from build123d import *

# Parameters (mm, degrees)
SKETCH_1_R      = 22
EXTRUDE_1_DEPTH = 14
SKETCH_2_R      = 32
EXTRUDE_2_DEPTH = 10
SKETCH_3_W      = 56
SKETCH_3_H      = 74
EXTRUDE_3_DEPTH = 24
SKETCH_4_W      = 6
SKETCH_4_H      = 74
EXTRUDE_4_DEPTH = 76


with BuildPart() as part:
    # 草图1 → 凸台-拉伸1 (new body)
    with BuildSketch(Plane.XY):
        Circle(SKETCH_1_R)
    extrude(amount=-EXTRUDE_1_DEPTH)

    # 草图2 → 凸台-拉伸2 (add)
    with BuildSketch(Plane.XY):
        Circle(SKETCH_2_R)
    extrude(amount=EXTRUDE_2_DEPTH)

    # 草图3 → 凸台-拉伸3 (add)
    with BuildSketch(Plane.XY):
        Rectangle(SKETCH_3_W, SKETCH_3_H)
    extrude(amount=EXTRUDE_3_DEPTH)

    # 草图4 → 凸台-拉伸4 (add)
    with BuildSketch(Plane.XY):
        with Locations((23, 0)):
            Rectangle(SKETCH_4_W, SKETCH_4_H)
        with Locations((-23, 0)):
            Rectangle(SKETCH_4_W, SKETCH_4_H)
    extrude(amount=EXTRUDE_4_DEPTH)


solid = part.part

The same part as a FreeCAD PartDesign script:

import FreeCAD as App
import Part
import Sketcher
Q = App.Units.Quantity

doc = App.newDocument("Part")
body = doc.addObject("PartDesign::Body", "Body")

# Sketch on XY plane
sketch1 = body.newObject("Sketcher::SketchObject", "Sketch")
sketch1.AttachmentSupport = (doc.getObject("XY_Plane"), [""])
sketch1.MapMode = "FlatFace"
sketch1.addGeometry(Part.Circle(App.Vector(0, 0, 0), App.Vector(0, 0, 1), 22), False)
sketch1.addConstraint(Sketcher.Constraint("Coincident", 0, 3, -1, 1))
sketch1.addConstraint(Sketcher.Constraint("Diameter", 0, Q("44 mm")))
pad1 = body.newObject("PartDesign::Pad", "Pad")
pad1.Profile = sketch1
pad1.Length = 14
pad1.Reversed = True

# Sketch on XY plane
sketch2 = body.newObject("Sketcher::SketchObject", "Sketch001")
sketch2.AttachmentSupport = (doc.getObject("XY_Plane"), [""])
sketch2.MapMode = "FlatFace"
sketch2.addGeometry(Part.Circle(App.Vector(0, 0, 0), App.Vector(0, 0, 1), 32), False)
sketch2.addConstraint(Sketcher.Constraint("Coincident", 0, 3, -1, 1))
sketch2.addConstraint(Sketcher.Constraint("Diameter", 0, Q("64 mm")))
pad2 = body.newObject("PartDesign::Pad", "Pad001")
pad2.Profile = sketch2
pad2.Length = 10

# Sketch on XY plane
sketch3 = body.newObject("Sketcher::SketchObject", "Sketch002")
sketch3.AttachmentSupport = (doc.getObject("XY_Plane"), [""])
sketch3.MapMode = "FlatFace"
sketch3.addGeometry(Part.LineSegment(App.Vector(-28, 37, 0), App.Vector(-28, -37, 0)), False)
sketch3.addGeometry(Part.LineSegment(App.Vector(-28, -37, 0), App.Vector(28, -37, 0)), False)
sketch3.addGeometry(Part.LineSegment(App.Vector(28, -37, 0), App.Vector(28, 37, 0)), False)
sketch3.addGeometry(Part.LineSegment(App.Vector(28, 37, 0), App.Vector(-28, 37, 0)), False)
sketch3.addConstraint(Sketcher.Constraint("Coincident", 0, 2, 1, 1))
sketch3.addConstraint(Sketcher.Constraint("Coincident", 1, 2, 2, 1))
sketch3.addConstraint(Sketcher.Constraint("Coincident", 2, 2, 3, 1))
sketch3.addConstraint(Sketcher.Constraint("Coincident", 3, 2, 0, 1))
sketch3.addConstraint(Sketcher.Constraint("Vertical", 0))
sketch3.addConstraint(Sketcher.Constraint("Horizontal", 1))
sketch3.addConstraint(Sketcher.Constraint("Vertical", 2))
sketch3.addConstraint(Sketcher.Constraint("Horizontal", 3))
sketch3.addConstraint(Sketcher.Constraint("Symmetric", 0, 2, 2, 2, -1, 1))
sketch3.addConstraint(Sketcher.Constraint("DistanceX", 1, 1, 1, 2, Q("56 mm")))
sketch3.addConstraint(Sketcher.Constraint("DistanceY", 0, 2, 0, 1, Q("74 mm")))
pad3 = body.newObject("PartDesign::Pad", "Pad002")
pad3.Profile = sketch3
pad3.Length = 24

# Sketch on XY plane
sketch4 = body.newObject("Sketcher::SketchObject", "Sketch003")
sketch4.AttachmentSupport = (doc.getObject("XY_Plane"), [""])
sketch4.MapMode = "FlatFace"
sketch4.addGeometry(Part.LineSegment(App.Vector(20, 37, 0), App.Vector(20, -37, 0)), False)
sketch4.addGeometry(Part.LineSegment(App.Vector(20, -37, 0), App.Vector(26, -37, 0)), False)
sketch4.addGeometry(Part.LineSegment(App.Vector(26, -37, 0), App.Vector(26, 37, 0)), False)
sketch4.addGeometry(Part.LineSegment(App.Vector(26, 37, 0), App.Vector(20, 37, 0)), False)
sketch4.addGeometry(Part.LineSegment(App.Vector(-26, 37, 0), App.Vector(-26, -37, 0)), False)
sketch4.addGeometry(Part.LineSegment(App.Vector(-26, -37, 0), App.Vector(-20, -37, 0)), False)
sketch4.addGeometry(Part.LineSegment(App.Vector(-20, -37, 0), App.Vector(-20, 37, 0)), False)
sketch4.addGeometry(Part.LineSegment(App.Vector(-20, 37, 0), App.Vector(-26, 37, 0)), False)
sketch4.addConstraint(Sketcher.Constraint("Coincident", 0, 2, 1, 1))
sketch4.addConstraint(Sketcher.Constraint("Coincident", 1, 2, 2, 1))
sketch4.addConstraint(Sketcher.Constraint("Coincident", 2, 2, 3, 1))
sketch4.addConstraint(Sketcher.Constraint("Coincident", 3, 2, 0, 1))
sketch4.addConstraint(Sketcher.Constraint("Coincident", 4, 2, 5, 1))
sketch4.addConstraint(Sketcher.Constraint("Coincident", 5, 2, 6, 1))
sketch4.addConstraint(Sketcher.Constraint("Coincident", 6, 2, 7, 1))
sketch4.addConstraint(Sketcher.Constraint("Coincident", 7, 2, 4, 1))
sketch4.addConstraint(Sketcher.Constraint("Vertical", 0))
sketch4.addConstraint(Sketcher.Constraint("Horizontal", 1))
sketch4.addConstraint(Sketcher.Constraint("Vertical", 2))
sketch4.addConstraint(Sketcher.Constraint("Horizontal", 3))
sketch4.addConstraint(Sketcher.Constraint("Vertical", 4))
sketch4.addConstraint(Sketcher.Constraint("Horizontal", 5))
sketch4.addConstraint(Sketcher.Constraint("Vertical", 6))
sketch4.addConstraint(Sketcher.Constraint("Horizontal", 7))
sketch4.addConstraint(Sketcher.Constraint("Symmetric", 2, 2, 4, 2, -1, 1))
sketch4.addConstraint(Sketcher.Constraint("Symmetric", 0, 2, 6, 2, -1, 1))
sketch4.addConstraint(Sketcher.Constraint("Horizontal", 1, 2, 4, 2))
sketch4.addConstraint(Sketcher.Constraint("DistanceX", 1, 1, 1, 2, Q("6 mm")))
sketch4.addConstraint(Sketcher.Constraint("DistanceY", 0, 2, 0, 1, Q("74 mm")))
sketch4.addConstraint(Sketcher.Constraint("DistanceX", -1, 1, 0, 2, Q("20 mm")))
pad4 = body.newObject("PartDesign::Pad", "Pad003")
pad4.Profile = sketch4
pad4.Length = 76

doc.recompute()
